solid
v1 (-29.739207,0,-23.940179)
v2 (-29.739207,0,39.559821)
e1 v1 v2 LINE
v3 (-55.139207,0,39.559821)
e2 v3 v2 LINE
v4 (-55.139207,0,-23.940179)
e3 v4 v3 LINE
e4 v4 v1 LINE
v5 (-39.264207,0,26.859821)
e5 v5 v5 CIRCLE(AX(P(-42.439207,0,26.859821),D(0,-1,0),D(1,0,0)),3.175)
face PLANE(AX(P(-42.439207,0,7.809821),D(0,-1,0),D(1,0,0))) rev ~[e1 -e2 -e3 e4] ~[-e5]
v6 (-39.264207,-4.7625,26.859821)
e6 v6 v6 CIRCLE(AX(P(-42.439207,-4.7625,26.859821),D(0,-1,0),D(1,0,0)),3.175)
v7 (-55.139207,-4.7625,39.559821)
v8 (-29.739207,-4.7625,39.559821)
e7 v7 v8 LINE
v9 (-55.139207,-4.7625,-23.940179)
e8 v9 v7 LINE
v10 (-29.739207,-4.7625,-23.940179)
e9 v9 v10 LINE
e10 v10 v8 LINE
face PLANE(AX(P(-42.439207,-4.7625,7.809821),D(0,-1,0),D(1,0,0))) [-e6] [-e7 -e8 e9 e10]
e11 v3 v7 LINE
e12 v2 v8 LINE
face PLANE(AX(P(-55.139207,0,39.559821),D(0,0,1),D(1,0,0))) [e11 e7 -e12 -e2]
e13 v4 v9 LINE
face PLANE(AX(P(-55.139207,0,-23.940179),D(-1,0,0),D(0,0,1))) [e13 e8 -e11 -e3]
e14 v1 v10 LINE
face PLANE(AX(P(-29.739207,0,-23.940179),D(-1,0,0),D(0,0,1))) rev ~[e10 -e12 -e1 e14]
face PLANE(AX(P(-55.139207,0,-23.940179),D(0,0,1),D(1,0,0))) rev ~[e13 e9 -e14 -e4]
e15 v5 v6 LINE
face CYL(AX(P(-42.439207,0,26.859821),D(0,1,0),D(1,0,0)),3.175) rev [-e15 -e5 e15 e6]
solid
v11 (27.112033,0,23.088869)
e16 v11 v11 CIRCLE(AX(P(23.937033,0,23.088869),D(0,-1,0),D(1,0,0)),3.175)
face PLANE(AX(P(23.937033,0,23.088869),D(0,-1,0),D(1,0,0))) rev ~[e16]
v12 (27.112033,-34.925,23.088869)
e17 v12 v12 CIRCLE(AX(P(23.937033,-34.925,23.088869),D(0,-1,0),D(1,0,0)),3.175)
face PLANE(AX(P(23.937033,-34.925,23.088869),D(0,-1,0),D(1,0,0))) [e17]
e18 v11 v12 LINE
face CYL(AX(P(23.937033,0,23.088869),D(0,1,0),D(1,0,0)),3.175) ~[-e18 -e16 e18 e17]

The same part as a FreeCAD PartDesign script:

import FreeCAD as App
import Part
import Sketcher
from FreeCAD import Vector
Q = App.Units.Quantity


def add_polygon(sketch, points):
    """Adds a closed chain of lines whose ends are joined by coincident constraints."""
    first, n = sketch.GeometryCount, len(points)
    for a, b in zip(points, points[1:] + points[:1]):
        sketch.addGeometry(Part.LineSegment(App.Vector(*a, 0), App.Vector(*b, 0)), False)
    for i in range(n):
        sketch.addConstraint(Sketcher.Constraint("Coincident", first + i, 2, first + (i + 1) % n, 1))

doc = App.newDocument("Part")
params = doc.addObject("Spreadsheet::Sheet", "Params")
for row, (alias, value) in enumerate([
    ("sketch1_diameter", "0.25 in"),
    ("sketch1_width", "1 in"),
    ("sketch1_height", "2.5 in"),
    ("pad1_length", "0.1875 in"),
    ("sketch2_diameter", "0.25 in"),
    ("pad2_length", "1.375 in"),
], start=1):
    params.set(f"A{row}", alias)
    params.set(f"B{row}", "=" + value)
    params.setAlias(f"B{row}", alias)

body = doc.addObject("PartDesign::Body", "Body")

# Sketch on XZ plane
sketch1 = body.newObject("Sketcher::SketchObject", "Sketch")
sketch1.AttachmentSupport = (doc.getObject("XZ_Plane"), [""])
sketch1.MapMode = "FlatFace"
add_polygon(sketch1, [(-55.139207, 39.559821), (-55.139207, -23.940179), (-29.739207, -23.940179), (-29.739207, 39.559821)])  # lines 0-3
sketch1.addGeometry(Part.Circle(Vector(-42.439207, 26.859821, 0), Vector(0, 0, 1), 3.175), False)  # 4
sketch1.addConstraint([
    Sketcher.Constraint("Vertical", 0),
    Sketcher.Constraint("Horizontal", 1),
    Sketcher.Constraint("Vertical", 2),
    Sketcher.Constraint("Horizontal", 3),
    Sketcher.Constraint("Diameter", 4, Q("0.25 in")),
    Sketcher.Constraint("DistanceX", 1, 1, 1, 2, Q("1 in")),
    Sketcher.Constraint("DistanceY", 0, 2, 0, 1, Q("2.5 in")),
    Sketcher.Constraint("DistanceY", 0, 2, 4, 3, Q("2 in")),
    Sketcher.Constraint("DistanceX", 0, 2, 4, 3, Q("0.5 in")),
    Sketcher.Constraint("DistanceY", -1, 1, 4, 3, Q("26.859821 mm")),
    Sketcher.Constraint("DistanceX", 4, 3, -1, 1, Q("42.439207 mm")),
])
sketch1.setExpression("Constraints[8]", "Params.sketch1_diameter")
sketch1.setExpression("Constraints[9]", "Params.sketch1_width")
sketch1.setExpression("Constraints[10]", "Params.sketch1_height")
pad1 = body.newObject("PartDesign::Pad", "Pad")
pad1.Profile = sketch1
pad1.setExpression("Length", "Params.pad1_length")
body2 = doc.addObject("PartDesign::Body", "Body001")

# Sketch on XZ plane
sketch2 = body2.newObject("Sketcher::SketchObject", "Sketch001")
sketch2.AttachmentSupport = (doc.getObject("XZ_Plane001"), [""])
sketch2.MapMode = "FlatFace"
sketch2.addGeometry(Part.Circle(Vector(23.937033, 23.088869, 0), Vector(0, 0, 1), 3.175), False)
sketch2.addConstraint([
    Sketcher.Constraint("Diameter", 0, Q("0.25 in")),
    Sketcher.Constraint("DistanceY", -1, 1, 0, 3, Q("23.088869 mm")),
    Sketcher.Constraint("DistanceX", -1, 1, 0, 3, Q("23.937033 mm")),
])
sketch2.setExpression("Constraints[0]", "Params.sketch2_diameter")
pad2 = body2.newObject("PartDesign::Pad", "Pad001")
pad2.Profile = sketch2
pad2.setExpression("Length", "Params.pad2_length")

doc.recompute()
